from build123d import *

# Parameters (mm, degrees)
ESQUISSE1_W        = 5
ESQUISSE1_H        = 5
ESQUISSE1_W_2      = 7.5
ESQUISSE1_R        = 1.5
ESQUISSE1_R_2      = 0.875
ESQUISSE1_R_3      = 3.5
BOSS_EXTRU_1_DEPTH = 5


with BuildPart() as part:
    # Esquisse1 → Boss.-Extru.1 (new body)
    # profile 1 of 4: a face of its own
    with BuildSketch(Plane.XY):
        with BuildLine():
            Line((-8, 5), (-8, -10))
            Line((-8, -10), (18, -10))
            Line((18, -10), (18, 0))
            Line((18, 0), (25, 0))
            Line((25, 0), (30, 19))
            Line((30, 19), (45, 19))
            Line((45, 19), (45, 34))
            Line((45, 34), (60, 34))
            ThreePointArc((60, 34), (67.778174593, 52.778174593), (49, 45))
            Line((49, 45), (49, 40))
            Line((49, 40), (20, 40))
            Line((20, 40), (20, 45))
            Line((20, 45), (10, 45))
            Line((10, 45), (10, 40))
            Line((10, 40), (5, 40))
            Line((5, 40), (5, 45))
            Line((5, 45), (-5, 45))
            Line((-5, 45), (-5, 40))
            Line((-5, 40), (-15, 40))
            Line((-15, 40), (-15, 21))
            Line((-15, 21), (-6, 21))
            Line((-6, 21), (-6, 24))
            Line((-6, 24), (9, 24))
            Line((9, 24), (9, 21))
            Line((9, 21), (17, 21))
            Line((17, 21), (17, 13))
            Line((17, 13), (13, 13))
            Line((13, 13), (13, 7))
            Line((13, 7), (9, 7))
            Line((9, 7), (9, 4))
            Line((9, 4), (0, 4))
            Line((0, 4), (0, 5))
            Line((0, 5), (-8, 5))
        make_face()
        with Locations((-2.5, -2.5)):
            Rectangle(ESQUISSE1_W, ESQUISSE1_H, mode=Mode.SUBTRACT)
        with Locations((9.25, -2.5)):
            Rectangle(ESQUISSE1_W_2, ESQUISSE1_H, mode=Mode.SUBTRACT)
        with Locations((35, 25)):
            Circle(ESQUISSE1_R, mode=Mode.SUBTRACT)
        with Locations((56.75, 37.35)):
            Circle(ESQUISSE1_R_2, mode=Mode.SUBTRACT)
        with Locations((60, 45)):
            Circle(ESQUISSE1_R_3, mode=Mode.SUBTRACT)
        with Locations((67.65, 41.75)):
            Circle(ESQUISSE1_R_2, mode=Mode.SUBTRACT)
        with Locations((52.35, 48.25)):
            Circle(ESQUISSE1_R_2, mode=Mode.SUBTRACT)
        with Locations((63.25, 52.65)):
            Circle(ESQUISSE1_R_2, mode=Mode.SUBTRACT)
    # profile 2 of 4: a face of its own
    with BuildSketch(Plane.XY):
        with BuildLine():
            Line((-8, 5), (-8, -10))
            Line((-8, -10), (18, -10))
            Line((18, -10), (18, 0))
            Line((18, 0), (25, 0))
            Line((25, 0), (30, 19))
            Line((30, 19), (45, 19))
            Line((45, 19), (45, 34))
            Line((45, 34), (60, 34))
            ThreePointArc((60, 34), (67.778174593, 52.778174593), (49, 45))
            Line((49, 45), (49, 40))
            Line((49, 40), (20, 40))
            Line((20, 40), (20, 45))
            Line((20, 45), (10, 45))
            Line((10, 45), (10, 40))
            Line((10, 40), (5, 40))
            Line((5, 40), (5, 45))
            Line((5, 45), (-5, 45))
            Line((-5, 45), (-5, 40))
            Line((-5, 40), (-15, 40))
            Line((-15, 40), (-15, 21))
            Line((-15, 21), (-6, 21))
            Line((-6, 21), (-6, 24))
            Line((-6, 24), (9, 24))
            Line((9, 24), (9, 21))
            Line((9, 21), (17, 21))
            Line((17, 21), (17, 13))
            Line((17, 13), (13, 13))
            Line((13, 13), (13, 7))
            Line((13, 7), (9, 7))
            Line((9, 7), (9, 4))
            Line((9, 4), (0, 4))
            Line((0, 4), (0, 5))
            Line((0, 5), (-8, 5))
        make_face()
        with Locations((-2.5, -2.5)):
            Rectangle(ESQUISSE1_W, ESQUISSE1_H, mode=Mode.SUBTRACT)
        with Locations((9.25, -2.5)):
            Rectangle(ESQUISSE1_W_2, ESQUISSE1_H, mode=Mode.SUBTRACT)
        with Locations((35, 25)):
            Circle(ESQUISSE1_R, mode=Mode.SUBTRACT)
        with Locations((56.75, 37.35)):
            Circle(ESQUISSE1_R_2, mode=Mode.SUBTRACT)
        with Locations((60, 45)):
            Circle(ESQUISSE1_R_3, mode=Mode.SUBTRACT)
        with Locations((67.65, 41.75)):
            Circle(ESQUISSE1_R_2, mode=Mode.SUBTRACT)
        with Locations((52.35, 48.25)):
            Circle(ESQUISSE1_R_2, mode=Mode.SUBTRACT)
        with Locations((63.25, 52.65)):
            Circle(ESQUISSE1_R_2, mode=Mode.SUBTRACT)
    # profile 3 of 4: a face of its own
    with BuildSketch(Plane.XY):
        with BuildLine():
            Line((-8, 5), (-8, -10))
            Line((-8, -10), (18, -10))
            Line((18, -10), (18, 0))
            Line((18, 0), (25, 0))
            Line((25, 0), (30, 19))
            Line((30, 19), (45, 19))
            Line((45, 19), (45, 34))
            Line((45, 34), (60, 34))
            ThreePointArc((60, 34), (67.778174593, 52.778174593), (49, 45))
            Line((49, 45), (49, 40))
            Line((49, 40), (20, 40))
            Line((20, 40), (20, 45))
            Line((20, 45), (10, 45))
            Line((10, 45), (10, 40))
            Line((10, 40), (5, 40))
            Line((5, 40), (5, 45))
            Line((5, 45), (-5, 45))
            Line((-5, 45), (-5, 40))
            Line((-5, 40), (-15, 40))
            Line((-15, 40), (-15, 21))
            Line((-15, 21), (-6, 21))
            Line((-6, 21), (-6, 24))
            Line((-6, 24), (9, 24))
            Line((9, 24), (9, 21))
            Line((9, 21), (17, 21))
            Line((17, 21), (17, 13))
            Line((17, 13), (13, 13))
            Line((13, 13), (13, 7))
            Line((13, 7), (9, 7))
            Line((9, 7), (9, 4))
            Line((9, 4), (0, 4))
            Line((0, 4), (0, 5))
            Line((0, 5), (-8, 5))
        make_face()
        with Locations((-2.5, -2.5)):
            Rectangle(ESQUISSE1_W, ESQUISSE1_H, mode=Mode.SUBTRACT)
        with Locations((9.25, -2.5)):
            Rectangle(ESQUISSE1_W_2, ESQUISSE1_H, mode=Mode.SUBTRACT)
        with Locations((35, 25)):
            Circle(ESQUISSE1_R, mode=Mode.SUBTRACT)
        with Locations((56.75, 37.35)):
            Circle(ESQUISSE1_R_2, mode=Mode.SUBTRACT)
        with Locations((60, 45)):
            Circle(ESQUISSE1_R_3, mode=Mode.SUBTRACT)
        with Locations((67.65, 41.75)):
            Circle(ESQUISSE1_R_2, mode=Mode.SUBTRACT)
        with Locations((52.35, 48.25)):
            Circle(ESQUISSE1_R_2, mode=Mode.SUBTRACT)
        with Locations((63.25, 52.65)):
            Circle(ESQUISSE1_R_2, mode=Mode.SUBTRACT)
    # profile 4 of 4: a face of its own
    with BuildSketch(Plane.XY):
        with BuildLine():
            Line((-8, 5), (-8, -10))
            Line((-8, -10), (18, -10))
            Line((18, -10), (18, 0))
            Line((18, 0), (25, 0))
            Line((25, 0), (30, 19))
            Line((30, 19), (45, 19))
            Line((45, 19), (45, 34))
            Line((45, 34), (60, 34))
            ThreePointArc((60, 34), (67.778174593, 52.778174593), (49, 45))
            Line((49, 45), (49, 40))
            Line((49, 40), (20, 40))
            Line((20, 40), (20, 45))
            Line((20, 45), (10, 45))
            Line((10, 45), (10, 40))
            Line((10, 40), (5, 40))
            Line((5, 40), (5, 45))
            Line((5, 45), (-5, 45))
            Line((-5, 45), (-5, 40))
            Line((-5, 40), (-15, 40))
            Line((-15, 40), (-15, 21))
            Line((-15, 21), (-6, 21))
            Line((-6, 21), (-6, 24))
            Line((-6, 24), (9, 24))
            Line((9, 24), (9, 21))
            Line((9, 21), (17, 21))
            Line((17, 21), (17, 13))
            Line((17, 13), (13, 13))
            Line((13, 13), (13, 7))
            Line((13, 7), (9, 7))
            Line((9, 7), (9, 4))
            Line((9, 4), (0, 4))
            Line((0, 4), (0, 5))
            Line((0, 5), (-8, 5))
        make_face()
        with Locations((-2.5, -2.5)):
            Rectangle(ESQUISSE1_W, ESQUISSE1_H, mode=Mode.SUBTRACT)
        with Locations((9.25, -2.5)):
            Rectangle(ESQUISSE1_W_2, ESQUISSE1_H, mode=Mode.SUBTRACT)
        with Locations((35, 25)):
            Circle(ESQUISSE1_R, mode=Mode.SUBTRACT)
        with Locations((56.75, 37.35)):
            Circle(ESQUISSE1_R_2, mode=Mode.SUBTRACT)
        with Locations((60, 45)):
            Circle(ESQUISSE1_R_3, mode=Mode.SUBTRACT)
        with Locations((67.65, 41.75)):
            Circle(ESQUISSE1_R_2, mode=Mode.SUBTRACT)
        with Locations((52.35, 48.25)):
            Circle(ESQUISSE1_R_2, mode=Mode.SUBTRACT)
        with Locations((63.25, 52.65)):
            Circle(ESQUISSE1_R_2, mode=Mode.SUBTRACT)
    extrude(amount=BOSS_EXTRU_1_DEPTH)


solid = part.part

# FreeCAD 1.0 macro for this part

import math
import FreeCAD as App
import Part
import Sketcher
from FreeCAD import Vector
Q = App.Units.Quantity


def add_polygon(sketch, points):
    """Adds a closed chain of lines whose ends are joined by coincident constraints."""
    first, n = sketch.GeometryCount, len(points)
    for a, b in zip(points, points[1:] + points[:1]):
        sketch.addGeometry(Part.LineSegment(App.Vector(*a, 0), App.Vector(*b, 0)), False)
    for i in range(n):
        sketch.addConstraint(Sketcher.Constraint("Coincident", first + i, 2, first + (i + 1) % n, 1))

doc = App.newDocument("Part")
body = doc.addObject("PartDesign::Body", "Body")

# Sketch on XY plane
sketch1 = body.newObject("Sketcher::SketchObject", "Sketch")
sketch1.AttachmentSupport = (doc.getObject("XY_Plane"), [""])
sketch1.MapMode = "FlatFace"
sketch1.addGeometry(Part.LineSegment(Vector(-8, 5, 0), Vector(-8, -10, 0)), False)  # 0
sketch1.addGeometry(Part.LineSegment(Vector(-8, -10, 0), Vector(18, -10, 0)), False)  # 1
sketch1.addGeometry(Part.LineSegment(Vector(18, -10, 0), Vector(18, 0, 0)), False)  # 2
sketch1.addGeometry(Part.LineSegment(Vector(18, 0, 0), Vector(25, 0, 0)), False)  # 3
sketch1.addGeometry(Part.LineSegment(Vector(25, 0, 0), Vector(30, 19, 0)), False)  # 4
sketch1.addGeometry(Part.LineSegment(Vector(30, 19, 0), Vector(45, 19, 0)), False)  # 5
sketch1.addGeometry(Part.LineSegment(Vector(45, 19, 0), Vector(45, 34, 0)), False)  # 6
sketch1.addGeometry(Part.LineSegment(Vector(45, 34, 0), Vector(60, 34, 0)), False)  # 7
sketch1.addGeometry(Part.ArcOfCircle(Part.Circle(Vector(60, 45, 0), Vector(0, 0, 1), 11), math.radians(-90), math.radians(180)), False)  # 8
sketch1.addGeometry(Part.LineSegment(Vector(49, 45, 0), Vector(49, 40, 0)), False)  # 9
sketch1.addGeometry(Part.LineSegment(Vector(49, 40, 0), Vector(20, 40, 0)), False)  # 10
sketch1.addGeometry(Part.LineSegment(Vector(20, 40, 0), Vector(20, 45, 0)), False)  # 11
sketch1.addGeometry(Part.LineSegment(Vector(20, 45, 0), Vector(10, 45, 0)), False)  # 12
sketch1.addGeometry(Part.LineSegment(Vector(10, 45, 0), Vector(10, 40, 0)), False)  # 13
sketch1.addGeometry(Part.LineSegment(Vector(10, 40, 0), Vector(5, 40, 0)), False)  # 14
sketch1.addGeometry(Part.LineSegment(Vector(5, 40, 0), Vector(5, 45, 0)), False)  # 15
sketch1.addGeometry(Part.LineSegment(Vector(5, 45, 0), Vector(-5, 45, 0)), False)  # 16
sketch1.addGeometry(Part.LineSegment(Vector(-5, 45, 0), Vector(-5, 40, 0)), False)  # 17
sketch1.addGeometry(Part.LineSegment(Vector(-5, 40, 0), Vector(-15, 40, 0)), False)  # 18
sketch1.addGeometry(Part.LineSegment(Vector(-15, 40, 0), Vector(-15, 21, 0)), False)  # 19
sketch1.addGeometry(Part.LineSegment(Vector(-15, 21, 0), Vector(-6, 21, 0)), False)  # 20
sketch1.addGeometry(Part.LineSegment(Vector(-6, 21, 0), Vector(-6, 24, 0)), False)  # 21
sketch1.addGeometry(Part.LineSegment(Vector(-6, 24, 0), Vector(9, 24, 0)), False)  # 22
sketch1.addGeometry(Part.LineSegment(Vector(9, 24, 0), Vector(9, 21, 0)), False)  # 23
sketch1.addGeometry(Part.LineSegment(Vector(9, 21, 0), Vector(17, 21, 0)), False)  # 24
sketch1.addGeometry(Part.LineSegment(Vector(17, 21, 0), Vector(17, 13, 0)), False)  # 25
sketch1.addGeometry(Part.LineSegment(Vector(17, 13, 0), Vector(13, 13, 0)), False)  # 26
sketch1.addGeometry(Part.LineSegment(Vector(13, 13, 0), Vector(13, 7, 0)), False)  # 27
sketch1.addGeometry(Part.LineSegment(Vector(13, 7, 0), Vector(9, 7, 0)), False)  # 28
sketch1.addGeometry(Part.LineSegment(Vector(9, 7, 0), Vector(9, 4, 0)), False)  # 29
sketch1.addGeometry(Part.LineSegment(Vector(9, 4, 0), Vector(0, 4, 0)), False)  # 30
sketch1.addGeometry(Part.LineSegment(Vector(0, 4, 0), Vector(0, 5, 0)), False)  # 31
sketch1.addGeometry(Part.LineSegment(Vector(0, 5, 0), Vector(-8, 5, 0)), False)  # 32
add_polygon(sketch1, [(0, -5), (-5, -5), (-5, 0), (0, 0)])  # lines 33-36
add_polygon(sketch1, [(13, -5), (5.5, -5), (5.5, 0), (13, 0)])  # lines 37-40
sketch1.addGeometry(Part.Circle(Vector(35, 25, 0), Vector(0, 0, 1), 1.5), False)  # 41
sketch1.addGeometry(Part.Circle(Vector(56.8, 37.4, 0), Vector(0, 0, 1), 0.9), False)  # 42
sketch1.addGeometry(Part.Circle(Vector(67.7, 41.8, 0), Vector(0, 0, 1), 0.9), False)  # 43
sketch1.addGeometry(Part.Circle(Vector(60, 45, 0), Vector(0, 0, 1), 3.5), False)  # 44
sketch1.addGeometry(Part.Circle(Vector(52.4, 48.2, 0), Vector(0, 0, 1), 0.9), False)  # 45
sketch1.addGeometry(Part.Circle(Vector(63.2, 52.6, 0), Vector(0, 0, 1), 0.9), False)  # 46
sketch1.addConstraint([
    Sketcher.Constraint("Coincident", 0, 2, 1, 1),
    Sketcher.Constraint("Coincident", 1, 2, 2, 1),
    Sketcher.Constraint("Coincident", 2, 2, 3, 1),
    Sketcher.Constraint("Coincident", 3, 2, 4, 1),
    Sketcher.Constraint("Coincident", 4, 2, 5, 1),
    Sketcher.Constraint("Coincident", 5, 2, 6, 1),
    Sketcher.Constraint("Coincident", 6, 2, 7, 1),
    Sketcher.Constraint("Tangent", 7, 2, 8, 1),
    Sketcher.Constraint("Tangent", 8, 2, 9, 1),
    Sketcher.Constraint("Coincident", 9, 2, 10, 1),
    Sketcher.Constraint("Coincident", 10, 2, 11, 1),
    Sketcher.Constraint("Coincident", 11, 2, 12, 1),
    Sketcher.Constraint("Coincident", 12, 2, 13, 1),
    Sketcher.Constraint("Coincident", 13, 2, 14, 1),
    Sketcher.Constraint("Coincident", 14, 2, 15, 1),
    Sketcher.Constraint("Coincident", 15, 2, 16, 1),
    Sketcher.Constraint("Coincident", 16, 2, 17, 1),
    Sketcher.Constraint("Coincident", 17, 2, 18, 1),
    Sketcher.Constraint("Coincident", 18, 2, 19, 1),
    Sketcher.Constraint("Coincident", 19, 2, 20, 1),
    Sketcher.Constraint("Coincident", 20, 2, 21, 1),
    Sketcher.Constraint("Coincident", 21, 2, 22, 1),
    Sketcher.Constraint("Coincident", 22, 2, 23, 1),
    Sketcher.Constraint("Coincident", 23, 2, 24, 1),
    Sketcher.Constraint("Coincident", 24, 2, 25, 1),
    Sketcher.Constraint("Coincident", 25, 2, 26, 1),
    Sketcher.Constraint("Coincident", 26, 2, 27, 1),
    Sketcher.Constraint("Coincident", 27, 2, 28, 1),
    Sketcher.Constraint("Coincident", 28, 2, 29, 1),
    Sketcher.Constraint("Coincident", 29, 2, 30, 1),
    Sketcher.Constraint("Coincident", 30, 2, 31, 1),
    Sketcher.Constraint("Coincident", 31, 2, 32, 1),
    Sketcher.Constraint("Coincident", 32, 2, 0, 1),
    Sketcher.Constraint("Vertical", 0),
    Sketcher.Constraint("Horizontal", 1),
    Sketcher.Constraint("Vertical", 2),
    Sketcher.Constraint("Horizontal", 3),
    Sketcher.Constraint("Horizontal", 5),
    Sketcher.Constraint("Vertical", 6),
    Sketcher.Constraint("Horizontal", 7),
    Sketcher.Constraint("Vertical", 9),
    Sketcher.Constraint("Horizontal", 10),
    Sketcher.Constraint("Vertical", 11),
    Sketcher.Constraint("Horizontal", 12),
    Sketcher.Constraint("Vertical", 13),
    Sketcher.Constraint("Horizontal", 14),
    Sketcher.Constraint("Vertical", 15),
    Sketcher.Constraint("Horizontal", 16),
    Sketcher.Constraint("Vertical", 17),
    Sketcher.Constraint("Horizontal", 18),
    Sketcher.Constraint("Vertical", 19),
    Sketcher.Constraint("Horizontal", 20),
    Sketcher.Constraint("Vertical", 21),
    Sketcher.Constraint("Horizontal", 22),
    Sketcher.Constraint("Vertical", 23),
    Sketcher.Constraint("Horizontal", 24),
    Sketcher.Constraint("Vertical", 25),
    Sketcher.Constraint("Horizontal", 26),
    Sketcher.Constraint("Vertical", 27),
    Sketcher.Constraint("Horizontal", 28),
    Sketcher.Constraint("Vertical", 29),
    Sketcher.Constraint("Horizontal", 30),
    Sketcher.Constraint("Vertical", 31),
    Sketcher.Constraint("Horizontal", 32),
    Sketcher.Constraint("Horizontal", 33),
    Sketcher.Constraint("Vertical", 34),
    Sketcher.Constraint("Horizontal", 35),
    Sketcher.Constraint("Vertical", 36),
    Sketcher.Constraint("Horizontal", 37),
    Sketcher.Constraint("Vertical", 38),
    Sketcher.Constraint("Horizontal", 39),
    Sketcher.Constraint("Vertical", 40),
    Sketcher.Constraint("Coincident", 35, 2, -1, 1),
    Sketcher.Constraint("Coincident", 44, 3, 8, 3),
    Sketcher.Constraint("Equal", 42, 43),
    Sketcher.Constraint("Equal", 43, 45),
    Sketcher.Constraint("Equal", 45, 46),
    Sketcher.Constraint("Symmetric", 31, 2, 36, 2, -1, 1),
    Sketcher.Constraint("Symmetric", 14, 2, 17, 2, -2),
    Sketcher.Constraint("PointOnObject", 2, 2, -1),
    Sketcher.Constraint("PointOnObject", 38, 2, -1),
    Sketcher.Constraint("Horizontal", 8, 2, 11, 2),
    Sketcher.Constraint("Horizontal", 10, 2, 13, 2),
    Sketcher.Constraint("Horizontal", 12, 2, 15, 2),
    Sketcher.Constraint("Horizontal", 20, 2, 23, 2),
    Sketcher.Constraint("Horizontal", 36, 2, 37, 2),
    Sketcher.Constraint("Vertical", 23, 2, 28, 2),
    Sketcher.Constraint("Vertical", 17, 2, 33, 2),
    Sketcher.Constraint("Vertical", 27, 2, 39, 2),
    Sketcher.Constraint("Equal", 5, 7),
    Sketcher.Constraint("Equal", 12, 16),
    Sketcher.Constraint("Equal", 16, 18),
    Sketcher.Constraint("Equal", 7, 22),
    Sketcher.Constraint("Equal", 26, 28),
    Sketcher.Constraint("Equal", 20, 30),
    Sketcher.Constraint("Equal", 24, 32),
    Sketcher.Constraint("Equal", 14, 33),
    Sketcher.Constraint("Equal", 22, 0),
    Sketcher.Constraint("Equal", 18, 2),
    Sketcher.Constraint("Equal", 0, 6),
    Sketcher.Constraint("Equal", 35, 9),
    Sketcher.Constraint("Equal", 32, 25),
    Sketcher.Constraint("Equal", 23, 29),
    Sketcher.Constraint("Diameter", 41, Q("3 mm")),
    Sketcher.Constraint("Diameter", 44, Q("7 mm")),
    Sketcher.Constraint("Radius", 8, Q("11 mm")),
    Sketcher.Constraint("Diameter", 42, Q("1.75 mm")),
    Sketcher.Constraint("DistanceX", 1, 1, 1, 2, Q("26 mm")),
    Sketcher.Constraint("DistanceX", 3, 1, 3, 2, Q("7 mm")),
    Sketcher.Constraint("DistanceX", 5, 1, 5, 2, Q("15 mm")),
    Sketcher.Constraint("DistanceX", 10, 2, 10, 1, Q("29 mm")),
    Sketcher.Constraint("DistanceX", 20, 1, 20, 2, Q("9 mm")),
    Sketcher.Constraint("DistanceX", 24, 1, 24, 2, Q("8 mm")),
    Sketcher.Constraint("DistanceY", 19, 2, 19, 1, Q("19 mm")),
    Sketcher.Constraint("DistanceY", 21, 1, 21, 2, Q("3 mm")),
    Sketcher.Constraint("DistanceY", 27, 2, 27, 1, Q("6 mm")),
    Sketcher.Constraint("DistanceY", 31, 1, 31, 2, Q("1 mm")),
    Sketcher.Constraint("DistanceX", 37, 2, 37, 1, Q("7.5 mm")),
    Sketcher.Constraint("DistanceX", -1, 1, 41, 3, Q("35 mm")),
    Sketcher.Constraint("DistanceY", -1, 1, 41, 3, Q("25 mm")),
    Sketcher.Constraint("DistanceX", 42, 3, 43, 3, Q("10.9 mm")),
    Sketcher.Constraint("DistanceY", 42, 3, 43, 3, Q("4.4 mm")),
    Sketcher.Constraint("DistanceX", 45, 3, 42, 3, Q("4.4 mm")),
    Sketcher.Constraint("DistanceY", 42, 3, 45, 3, Q("10.9 mm")),
    Sketcher.Constraint("DistanceX", 45, 3, 46, 3, Q("10.9 mm")),
    Sketcher.Constraint("DistanceY", 45, 3, 46, 3, Q("4.4 mm")),
    Sketcher.Constraint("DistanceX", -1, 1, 42, 3, Q("56.75 mm")),
    Sketcher.Constraint("DistanceY", -1, 1, 42, 3, Q("37.35 mm")),
])
pad1 = body.newObject("PartDesign::Pad", "Pad")
pad1.Profile = sketch1
pad1.Length = 5

doc.recompute()
